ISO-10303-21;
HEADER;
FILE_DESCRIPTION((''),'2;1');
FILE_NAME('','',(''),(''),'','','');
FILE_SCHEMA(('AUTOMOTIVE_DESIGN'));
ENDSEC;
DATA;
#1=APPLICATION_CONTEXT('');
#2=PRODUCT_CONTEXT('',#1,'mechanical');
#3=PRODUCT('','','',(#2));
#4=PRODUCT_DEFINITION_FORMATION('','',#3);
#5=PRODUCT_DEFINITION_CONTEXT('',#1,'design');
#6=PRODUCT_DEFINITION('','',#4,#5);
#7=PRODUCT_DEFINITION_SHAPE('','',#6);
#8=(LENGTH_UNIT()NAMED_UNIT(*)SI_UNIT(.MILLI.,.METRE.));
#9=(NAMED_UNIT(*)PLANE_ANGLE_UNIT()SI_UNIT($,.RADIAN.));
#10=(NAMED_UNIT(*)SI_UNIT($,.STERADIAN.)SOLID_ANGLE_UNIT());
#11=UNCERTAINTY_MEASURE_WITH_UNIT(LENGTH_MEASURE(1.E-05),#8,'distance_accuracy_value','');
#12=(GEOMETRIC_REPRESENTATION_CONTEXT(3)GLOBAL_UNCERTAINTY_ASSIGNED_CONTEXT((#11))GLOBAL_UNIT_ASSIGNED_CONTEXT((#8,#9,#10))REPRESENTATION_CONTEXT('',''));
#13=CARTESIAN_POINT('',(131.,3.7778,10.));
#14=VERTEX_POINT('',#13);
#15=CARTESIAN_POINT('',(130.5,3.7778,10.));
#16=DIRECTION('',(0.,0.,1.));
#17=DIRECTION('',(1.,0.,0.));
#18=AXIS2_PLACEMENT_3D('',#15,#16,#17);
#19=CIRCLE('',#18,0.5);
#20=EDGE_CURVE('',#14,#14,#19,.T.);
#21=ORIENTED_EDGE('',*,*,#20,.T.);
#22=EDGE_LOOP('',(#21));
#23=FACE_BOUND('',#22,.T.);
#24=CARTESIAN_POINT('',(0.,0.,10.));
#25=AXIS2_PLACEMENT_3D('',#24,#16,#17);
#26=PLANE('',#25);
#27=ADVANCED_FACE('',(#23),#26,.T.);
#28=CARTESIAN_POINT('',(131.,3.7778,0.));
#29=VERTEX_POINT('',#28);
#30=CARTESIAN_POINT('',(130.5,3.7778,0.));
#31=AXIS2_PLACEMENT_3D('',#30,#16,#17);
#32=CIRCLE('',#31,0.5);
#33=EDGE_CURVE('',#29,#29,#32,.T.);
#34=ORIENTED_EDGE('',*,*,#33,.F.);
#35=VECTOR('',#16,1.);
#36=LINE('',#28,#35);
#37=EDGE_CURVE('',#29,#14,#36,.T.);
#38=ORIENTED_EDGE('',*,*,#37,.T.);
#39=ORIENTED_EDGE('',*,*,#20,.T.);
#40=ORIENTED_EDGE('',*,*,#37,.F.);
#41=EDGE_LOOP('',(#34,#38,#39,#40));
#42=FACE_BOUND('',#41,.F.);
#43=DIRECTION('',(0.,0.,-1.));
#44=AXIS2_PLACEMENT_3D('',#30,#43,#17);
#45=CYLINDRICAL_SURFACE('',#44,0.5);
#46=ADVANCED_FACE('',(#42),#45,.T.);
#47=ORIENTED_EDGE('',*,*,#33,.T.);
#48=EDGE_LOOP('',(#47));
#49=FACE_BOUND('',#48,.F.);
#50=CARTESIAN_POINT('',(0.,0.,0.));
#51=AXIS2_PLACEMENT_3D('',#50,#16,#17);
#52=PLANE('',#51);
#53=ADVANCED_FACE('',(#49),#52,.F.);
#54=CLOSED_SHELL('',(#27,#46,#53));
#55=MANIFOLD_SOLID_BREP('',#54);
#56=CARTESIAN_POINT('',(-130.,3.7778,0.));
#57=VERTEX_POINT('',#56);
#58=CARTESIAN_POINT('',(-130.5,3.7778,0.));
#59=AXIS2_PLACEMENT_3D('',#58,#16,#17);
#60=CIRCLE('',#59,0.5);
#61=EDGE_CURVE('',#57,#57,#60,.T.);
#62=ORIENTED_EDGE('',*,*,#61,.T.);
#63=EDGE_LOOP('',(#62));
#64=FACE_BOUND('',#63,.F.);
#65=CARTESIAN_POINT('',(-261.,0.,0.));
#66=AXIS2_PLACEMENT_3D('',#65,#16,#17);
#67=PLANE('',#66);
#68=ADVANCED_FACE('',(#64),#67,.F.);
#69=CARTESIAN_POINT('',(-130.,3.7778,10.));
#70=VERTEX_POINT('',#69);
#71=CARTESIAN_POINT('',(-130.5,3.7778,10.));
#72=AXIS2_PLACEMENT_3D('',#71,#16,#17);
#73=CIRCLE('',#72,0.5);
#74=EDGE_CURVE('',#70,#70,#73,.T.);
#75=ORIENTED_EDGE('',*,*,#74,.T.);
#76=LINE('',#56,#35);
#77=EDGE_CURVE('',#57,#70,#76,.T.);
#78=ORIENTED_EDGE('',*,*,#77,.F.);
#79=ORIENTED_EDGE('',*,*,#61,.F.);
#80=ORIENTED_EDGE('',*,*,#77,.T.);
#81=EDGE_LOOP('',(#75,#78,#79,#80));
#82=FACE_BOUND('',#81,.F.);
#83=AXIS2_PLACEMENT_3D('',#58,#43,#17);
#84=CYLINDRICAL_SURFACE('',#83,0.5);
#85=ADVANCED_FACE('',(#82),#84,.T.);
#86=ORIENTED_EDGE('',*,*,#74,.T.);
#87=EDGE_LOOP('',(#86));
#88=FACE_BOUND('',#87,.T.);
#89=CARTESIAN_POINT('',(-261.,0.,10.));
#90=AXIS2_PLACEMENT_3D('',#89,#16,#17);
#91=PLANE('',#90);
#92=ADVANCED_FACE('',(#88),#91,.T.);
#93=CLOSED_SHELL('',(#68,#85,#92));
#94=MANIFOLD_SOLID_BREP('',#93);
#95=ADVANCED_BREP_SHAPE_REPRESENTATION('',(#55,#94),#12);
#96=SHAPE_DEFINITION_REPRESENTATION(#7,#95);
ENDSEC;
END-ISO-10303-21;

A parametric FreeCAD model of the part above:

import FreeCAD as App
import Part
import Sketcher
Q = App.Units.Quantity

doc = App.newDocument("Part")
params = doc.addObject("Spreadsheet::Sheet", "Params")
for row, (alias, value) in enumerate([
    ("sketch1_diameter", "1 mm"),
    ("pad1_length", "10 mm"),
    ("linearpattern_pitch", "261 mm"),
], start=1):
    params.set(f"A{row}", alias)
    params.set(f"B{row}", "=" + value)
    params.setAlias(f"B{row}", alias)

body = doc.addObject("PartDesign::Body", "Body")
body.AllowCompound = True

# Sketch on XY plane
sketch1 = body.newObject("Sketcher::SketchObject", "Sketch")
sketch1.AttachmentSupport = (doc.getObject("XY_Plane"), [""])
sketch1.MapMode = "FlatFace"
sketch1.addGeometry(Part.Circle(App.Vector(130.5, 3.8, 0), App.Vector(0, 0, 1), 0.5), False)
sketch1.addConstraint(Sketcher.Constraint("Diameter", 0, Q("1 mm")))
sketch1.addConstraint(Sketcher.Constraint("DistanceX", -1, 1, 0, 3, Q("130.5 mm")))
sketch1.addConstraint(Sketcher.Constraint("DistanceY", -1, 1, 0, 3, Q("3.7778 mm")))
sketch1.setExpression("Constraints[0]", "Params.sketch1_diameter")
pad1 = body.newObject("PartDesign::Pad", "Pad")
pad1.Profile = sketch1
pad1.setExpression("Length", "Params.pad1_length")
doc.recompute()

linearpattern = body.newObject("PartDesign::LinearPattern", "LinearPattern")
linearpattern.Originals = [pad1]
linearpattern.Direction = (doc.getObject("X_Axis"), [""])
linearpattern.Mode = "offset"
linearpattern.setExpression("Offset", "Params.linearpattern_pitch")
linearpattern.Occurrences = 2
linearpattern.Reversed = True
body.Tip = linearpattern

doc.recompute()
